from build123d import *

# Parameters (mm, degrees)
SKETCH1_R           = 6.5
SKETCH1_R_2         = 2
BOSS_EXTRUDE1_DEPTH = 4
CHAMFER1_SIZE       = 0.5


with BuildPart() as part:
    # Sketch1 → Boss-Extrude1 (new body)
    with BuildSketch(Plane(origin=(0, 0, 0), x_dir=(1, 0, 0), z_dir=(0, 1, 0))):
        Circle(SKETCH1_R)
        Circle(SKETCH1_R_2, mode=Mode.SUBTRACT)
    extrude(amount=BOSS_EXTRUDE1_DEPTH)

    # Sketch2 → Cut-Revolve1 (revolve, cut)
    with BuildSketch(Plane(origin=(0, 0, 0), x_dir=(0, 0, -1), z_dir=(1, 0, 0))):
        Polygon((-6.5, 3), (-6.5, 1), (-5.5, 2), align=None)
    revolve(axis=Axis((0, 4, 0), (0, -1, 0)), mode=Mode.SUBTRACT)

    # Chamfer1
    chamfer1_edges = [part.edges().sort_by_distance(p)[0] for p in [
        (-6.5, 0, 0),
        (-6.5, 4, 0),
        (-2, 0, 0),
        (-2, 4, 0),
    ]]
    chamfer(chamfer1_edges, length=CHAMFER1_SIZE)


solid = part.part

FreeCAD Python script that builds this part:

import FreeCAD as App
import Part
import Sketcher

V = App.Vector


def edges_at(feature, points):
    """Names of the edges that pass closest to the given points."""
    edges = feature.Shape.Edges
    near = lambda p: min(range(len(edges)), key=lambda i: edges[i].distToShape(Part.Vertex(*p))[0])
    return sorted({f"Edge{near(p) + 1}" for p in points})

doc = App.newDocument("Part")
body = doc.addObject("PartDesign::Body", "Body")

# Sketch on XZ plane
sketch1 = body.newObject("Sketcher::SketchObject", "Sketch")
sketch1.AttachmentSupport = (doc.getObject("XZ_Plane"), [""])
sketch1.MapMode = "FlatFace"
sketch1.addGeometry([
    Part.Circle(V(0, 0, 0), V(0, 0, 1), 6.5),
    Part.Circle(V(0, 0, 0), V(0, 0, 1), 2),
], False)
sketch1.addConstraint([
    Sketcher.Constraint("Coincident", 0, 3, -1, 1),
    Sketcher.Constraint("Coincident", 1, 3, -1, 1),
    Sketcher.Constraint("Diameter", 0, 13.0),
    Sketcher.Constraint("Diameter", 1, 4.0),
])
pad1 = body.newObject("PartDesign::Pad", "Pad")
pad1.Profile = sketch1
pad1.Length = 4
pad1.Reversed = True

# Sketch on YZ plane
sketch2 = body.newObject("Sketcher::SketchObject", "Sketch001")
sketch2.AttachmentSupport = (doc.getObject("YZ_Plane"), [""])
sketch2.MapMode = "FlatFace"
sketch2.addGeometry([
    Part.LineSegment(V(3, 6.5, 0), V(1, 6.5, 0)),
    Part.LineSegment(V(1, 6.5, 0), V(2, 5.5, 0)),
    Part.LineSegment(V(2, 5.5, 0), V(3, 6.5, 0)),
], False)
sketch2.addConstraint([
    Sketcher.Constraint("Coincident", 0, 2, 1, 1),
    Sketcher.Constraint("Coincident", 1, 2, 2, 1),
    Sketcher.Constraint("Coincident", 2, 2, 0, 1),
    Sketcher.Constraint("Horizontal", 0),
    Sketcher.Constraint("Perpendicular", 1, 2),
    Sketcher.Constraint("Equal", 1, 2),
    Sketcher.Constraint("DistanceX", 0, 2, 0, 1, 2.0),
    Sketcher.Constraint("DistanceX", -1, 1, 0, 2, 1.0),
    Sketcher.Constraint("DistanceY", -1, 1, 0, 2, 6.5),
])
groove = body.newObject("PartDesign::Groove", "Groove")
groove.Profile = sketch2
groove.ReferenceAxis = (sketch2, ["H_Axis"])
groove.Angle = 360
doc.recompute()

chamfer = body.newObject("PartDesign::Chamfer", "Chamfer")
chamfer.Base = (groove, edges_at(groove, [
    (-6.5, 0, 0),
    (-6.5, 4, 0),
    (-2, 0, 0),
    (-2, 4, 0),
]))
chamfer.Size = 0.5

doc.recompute()
